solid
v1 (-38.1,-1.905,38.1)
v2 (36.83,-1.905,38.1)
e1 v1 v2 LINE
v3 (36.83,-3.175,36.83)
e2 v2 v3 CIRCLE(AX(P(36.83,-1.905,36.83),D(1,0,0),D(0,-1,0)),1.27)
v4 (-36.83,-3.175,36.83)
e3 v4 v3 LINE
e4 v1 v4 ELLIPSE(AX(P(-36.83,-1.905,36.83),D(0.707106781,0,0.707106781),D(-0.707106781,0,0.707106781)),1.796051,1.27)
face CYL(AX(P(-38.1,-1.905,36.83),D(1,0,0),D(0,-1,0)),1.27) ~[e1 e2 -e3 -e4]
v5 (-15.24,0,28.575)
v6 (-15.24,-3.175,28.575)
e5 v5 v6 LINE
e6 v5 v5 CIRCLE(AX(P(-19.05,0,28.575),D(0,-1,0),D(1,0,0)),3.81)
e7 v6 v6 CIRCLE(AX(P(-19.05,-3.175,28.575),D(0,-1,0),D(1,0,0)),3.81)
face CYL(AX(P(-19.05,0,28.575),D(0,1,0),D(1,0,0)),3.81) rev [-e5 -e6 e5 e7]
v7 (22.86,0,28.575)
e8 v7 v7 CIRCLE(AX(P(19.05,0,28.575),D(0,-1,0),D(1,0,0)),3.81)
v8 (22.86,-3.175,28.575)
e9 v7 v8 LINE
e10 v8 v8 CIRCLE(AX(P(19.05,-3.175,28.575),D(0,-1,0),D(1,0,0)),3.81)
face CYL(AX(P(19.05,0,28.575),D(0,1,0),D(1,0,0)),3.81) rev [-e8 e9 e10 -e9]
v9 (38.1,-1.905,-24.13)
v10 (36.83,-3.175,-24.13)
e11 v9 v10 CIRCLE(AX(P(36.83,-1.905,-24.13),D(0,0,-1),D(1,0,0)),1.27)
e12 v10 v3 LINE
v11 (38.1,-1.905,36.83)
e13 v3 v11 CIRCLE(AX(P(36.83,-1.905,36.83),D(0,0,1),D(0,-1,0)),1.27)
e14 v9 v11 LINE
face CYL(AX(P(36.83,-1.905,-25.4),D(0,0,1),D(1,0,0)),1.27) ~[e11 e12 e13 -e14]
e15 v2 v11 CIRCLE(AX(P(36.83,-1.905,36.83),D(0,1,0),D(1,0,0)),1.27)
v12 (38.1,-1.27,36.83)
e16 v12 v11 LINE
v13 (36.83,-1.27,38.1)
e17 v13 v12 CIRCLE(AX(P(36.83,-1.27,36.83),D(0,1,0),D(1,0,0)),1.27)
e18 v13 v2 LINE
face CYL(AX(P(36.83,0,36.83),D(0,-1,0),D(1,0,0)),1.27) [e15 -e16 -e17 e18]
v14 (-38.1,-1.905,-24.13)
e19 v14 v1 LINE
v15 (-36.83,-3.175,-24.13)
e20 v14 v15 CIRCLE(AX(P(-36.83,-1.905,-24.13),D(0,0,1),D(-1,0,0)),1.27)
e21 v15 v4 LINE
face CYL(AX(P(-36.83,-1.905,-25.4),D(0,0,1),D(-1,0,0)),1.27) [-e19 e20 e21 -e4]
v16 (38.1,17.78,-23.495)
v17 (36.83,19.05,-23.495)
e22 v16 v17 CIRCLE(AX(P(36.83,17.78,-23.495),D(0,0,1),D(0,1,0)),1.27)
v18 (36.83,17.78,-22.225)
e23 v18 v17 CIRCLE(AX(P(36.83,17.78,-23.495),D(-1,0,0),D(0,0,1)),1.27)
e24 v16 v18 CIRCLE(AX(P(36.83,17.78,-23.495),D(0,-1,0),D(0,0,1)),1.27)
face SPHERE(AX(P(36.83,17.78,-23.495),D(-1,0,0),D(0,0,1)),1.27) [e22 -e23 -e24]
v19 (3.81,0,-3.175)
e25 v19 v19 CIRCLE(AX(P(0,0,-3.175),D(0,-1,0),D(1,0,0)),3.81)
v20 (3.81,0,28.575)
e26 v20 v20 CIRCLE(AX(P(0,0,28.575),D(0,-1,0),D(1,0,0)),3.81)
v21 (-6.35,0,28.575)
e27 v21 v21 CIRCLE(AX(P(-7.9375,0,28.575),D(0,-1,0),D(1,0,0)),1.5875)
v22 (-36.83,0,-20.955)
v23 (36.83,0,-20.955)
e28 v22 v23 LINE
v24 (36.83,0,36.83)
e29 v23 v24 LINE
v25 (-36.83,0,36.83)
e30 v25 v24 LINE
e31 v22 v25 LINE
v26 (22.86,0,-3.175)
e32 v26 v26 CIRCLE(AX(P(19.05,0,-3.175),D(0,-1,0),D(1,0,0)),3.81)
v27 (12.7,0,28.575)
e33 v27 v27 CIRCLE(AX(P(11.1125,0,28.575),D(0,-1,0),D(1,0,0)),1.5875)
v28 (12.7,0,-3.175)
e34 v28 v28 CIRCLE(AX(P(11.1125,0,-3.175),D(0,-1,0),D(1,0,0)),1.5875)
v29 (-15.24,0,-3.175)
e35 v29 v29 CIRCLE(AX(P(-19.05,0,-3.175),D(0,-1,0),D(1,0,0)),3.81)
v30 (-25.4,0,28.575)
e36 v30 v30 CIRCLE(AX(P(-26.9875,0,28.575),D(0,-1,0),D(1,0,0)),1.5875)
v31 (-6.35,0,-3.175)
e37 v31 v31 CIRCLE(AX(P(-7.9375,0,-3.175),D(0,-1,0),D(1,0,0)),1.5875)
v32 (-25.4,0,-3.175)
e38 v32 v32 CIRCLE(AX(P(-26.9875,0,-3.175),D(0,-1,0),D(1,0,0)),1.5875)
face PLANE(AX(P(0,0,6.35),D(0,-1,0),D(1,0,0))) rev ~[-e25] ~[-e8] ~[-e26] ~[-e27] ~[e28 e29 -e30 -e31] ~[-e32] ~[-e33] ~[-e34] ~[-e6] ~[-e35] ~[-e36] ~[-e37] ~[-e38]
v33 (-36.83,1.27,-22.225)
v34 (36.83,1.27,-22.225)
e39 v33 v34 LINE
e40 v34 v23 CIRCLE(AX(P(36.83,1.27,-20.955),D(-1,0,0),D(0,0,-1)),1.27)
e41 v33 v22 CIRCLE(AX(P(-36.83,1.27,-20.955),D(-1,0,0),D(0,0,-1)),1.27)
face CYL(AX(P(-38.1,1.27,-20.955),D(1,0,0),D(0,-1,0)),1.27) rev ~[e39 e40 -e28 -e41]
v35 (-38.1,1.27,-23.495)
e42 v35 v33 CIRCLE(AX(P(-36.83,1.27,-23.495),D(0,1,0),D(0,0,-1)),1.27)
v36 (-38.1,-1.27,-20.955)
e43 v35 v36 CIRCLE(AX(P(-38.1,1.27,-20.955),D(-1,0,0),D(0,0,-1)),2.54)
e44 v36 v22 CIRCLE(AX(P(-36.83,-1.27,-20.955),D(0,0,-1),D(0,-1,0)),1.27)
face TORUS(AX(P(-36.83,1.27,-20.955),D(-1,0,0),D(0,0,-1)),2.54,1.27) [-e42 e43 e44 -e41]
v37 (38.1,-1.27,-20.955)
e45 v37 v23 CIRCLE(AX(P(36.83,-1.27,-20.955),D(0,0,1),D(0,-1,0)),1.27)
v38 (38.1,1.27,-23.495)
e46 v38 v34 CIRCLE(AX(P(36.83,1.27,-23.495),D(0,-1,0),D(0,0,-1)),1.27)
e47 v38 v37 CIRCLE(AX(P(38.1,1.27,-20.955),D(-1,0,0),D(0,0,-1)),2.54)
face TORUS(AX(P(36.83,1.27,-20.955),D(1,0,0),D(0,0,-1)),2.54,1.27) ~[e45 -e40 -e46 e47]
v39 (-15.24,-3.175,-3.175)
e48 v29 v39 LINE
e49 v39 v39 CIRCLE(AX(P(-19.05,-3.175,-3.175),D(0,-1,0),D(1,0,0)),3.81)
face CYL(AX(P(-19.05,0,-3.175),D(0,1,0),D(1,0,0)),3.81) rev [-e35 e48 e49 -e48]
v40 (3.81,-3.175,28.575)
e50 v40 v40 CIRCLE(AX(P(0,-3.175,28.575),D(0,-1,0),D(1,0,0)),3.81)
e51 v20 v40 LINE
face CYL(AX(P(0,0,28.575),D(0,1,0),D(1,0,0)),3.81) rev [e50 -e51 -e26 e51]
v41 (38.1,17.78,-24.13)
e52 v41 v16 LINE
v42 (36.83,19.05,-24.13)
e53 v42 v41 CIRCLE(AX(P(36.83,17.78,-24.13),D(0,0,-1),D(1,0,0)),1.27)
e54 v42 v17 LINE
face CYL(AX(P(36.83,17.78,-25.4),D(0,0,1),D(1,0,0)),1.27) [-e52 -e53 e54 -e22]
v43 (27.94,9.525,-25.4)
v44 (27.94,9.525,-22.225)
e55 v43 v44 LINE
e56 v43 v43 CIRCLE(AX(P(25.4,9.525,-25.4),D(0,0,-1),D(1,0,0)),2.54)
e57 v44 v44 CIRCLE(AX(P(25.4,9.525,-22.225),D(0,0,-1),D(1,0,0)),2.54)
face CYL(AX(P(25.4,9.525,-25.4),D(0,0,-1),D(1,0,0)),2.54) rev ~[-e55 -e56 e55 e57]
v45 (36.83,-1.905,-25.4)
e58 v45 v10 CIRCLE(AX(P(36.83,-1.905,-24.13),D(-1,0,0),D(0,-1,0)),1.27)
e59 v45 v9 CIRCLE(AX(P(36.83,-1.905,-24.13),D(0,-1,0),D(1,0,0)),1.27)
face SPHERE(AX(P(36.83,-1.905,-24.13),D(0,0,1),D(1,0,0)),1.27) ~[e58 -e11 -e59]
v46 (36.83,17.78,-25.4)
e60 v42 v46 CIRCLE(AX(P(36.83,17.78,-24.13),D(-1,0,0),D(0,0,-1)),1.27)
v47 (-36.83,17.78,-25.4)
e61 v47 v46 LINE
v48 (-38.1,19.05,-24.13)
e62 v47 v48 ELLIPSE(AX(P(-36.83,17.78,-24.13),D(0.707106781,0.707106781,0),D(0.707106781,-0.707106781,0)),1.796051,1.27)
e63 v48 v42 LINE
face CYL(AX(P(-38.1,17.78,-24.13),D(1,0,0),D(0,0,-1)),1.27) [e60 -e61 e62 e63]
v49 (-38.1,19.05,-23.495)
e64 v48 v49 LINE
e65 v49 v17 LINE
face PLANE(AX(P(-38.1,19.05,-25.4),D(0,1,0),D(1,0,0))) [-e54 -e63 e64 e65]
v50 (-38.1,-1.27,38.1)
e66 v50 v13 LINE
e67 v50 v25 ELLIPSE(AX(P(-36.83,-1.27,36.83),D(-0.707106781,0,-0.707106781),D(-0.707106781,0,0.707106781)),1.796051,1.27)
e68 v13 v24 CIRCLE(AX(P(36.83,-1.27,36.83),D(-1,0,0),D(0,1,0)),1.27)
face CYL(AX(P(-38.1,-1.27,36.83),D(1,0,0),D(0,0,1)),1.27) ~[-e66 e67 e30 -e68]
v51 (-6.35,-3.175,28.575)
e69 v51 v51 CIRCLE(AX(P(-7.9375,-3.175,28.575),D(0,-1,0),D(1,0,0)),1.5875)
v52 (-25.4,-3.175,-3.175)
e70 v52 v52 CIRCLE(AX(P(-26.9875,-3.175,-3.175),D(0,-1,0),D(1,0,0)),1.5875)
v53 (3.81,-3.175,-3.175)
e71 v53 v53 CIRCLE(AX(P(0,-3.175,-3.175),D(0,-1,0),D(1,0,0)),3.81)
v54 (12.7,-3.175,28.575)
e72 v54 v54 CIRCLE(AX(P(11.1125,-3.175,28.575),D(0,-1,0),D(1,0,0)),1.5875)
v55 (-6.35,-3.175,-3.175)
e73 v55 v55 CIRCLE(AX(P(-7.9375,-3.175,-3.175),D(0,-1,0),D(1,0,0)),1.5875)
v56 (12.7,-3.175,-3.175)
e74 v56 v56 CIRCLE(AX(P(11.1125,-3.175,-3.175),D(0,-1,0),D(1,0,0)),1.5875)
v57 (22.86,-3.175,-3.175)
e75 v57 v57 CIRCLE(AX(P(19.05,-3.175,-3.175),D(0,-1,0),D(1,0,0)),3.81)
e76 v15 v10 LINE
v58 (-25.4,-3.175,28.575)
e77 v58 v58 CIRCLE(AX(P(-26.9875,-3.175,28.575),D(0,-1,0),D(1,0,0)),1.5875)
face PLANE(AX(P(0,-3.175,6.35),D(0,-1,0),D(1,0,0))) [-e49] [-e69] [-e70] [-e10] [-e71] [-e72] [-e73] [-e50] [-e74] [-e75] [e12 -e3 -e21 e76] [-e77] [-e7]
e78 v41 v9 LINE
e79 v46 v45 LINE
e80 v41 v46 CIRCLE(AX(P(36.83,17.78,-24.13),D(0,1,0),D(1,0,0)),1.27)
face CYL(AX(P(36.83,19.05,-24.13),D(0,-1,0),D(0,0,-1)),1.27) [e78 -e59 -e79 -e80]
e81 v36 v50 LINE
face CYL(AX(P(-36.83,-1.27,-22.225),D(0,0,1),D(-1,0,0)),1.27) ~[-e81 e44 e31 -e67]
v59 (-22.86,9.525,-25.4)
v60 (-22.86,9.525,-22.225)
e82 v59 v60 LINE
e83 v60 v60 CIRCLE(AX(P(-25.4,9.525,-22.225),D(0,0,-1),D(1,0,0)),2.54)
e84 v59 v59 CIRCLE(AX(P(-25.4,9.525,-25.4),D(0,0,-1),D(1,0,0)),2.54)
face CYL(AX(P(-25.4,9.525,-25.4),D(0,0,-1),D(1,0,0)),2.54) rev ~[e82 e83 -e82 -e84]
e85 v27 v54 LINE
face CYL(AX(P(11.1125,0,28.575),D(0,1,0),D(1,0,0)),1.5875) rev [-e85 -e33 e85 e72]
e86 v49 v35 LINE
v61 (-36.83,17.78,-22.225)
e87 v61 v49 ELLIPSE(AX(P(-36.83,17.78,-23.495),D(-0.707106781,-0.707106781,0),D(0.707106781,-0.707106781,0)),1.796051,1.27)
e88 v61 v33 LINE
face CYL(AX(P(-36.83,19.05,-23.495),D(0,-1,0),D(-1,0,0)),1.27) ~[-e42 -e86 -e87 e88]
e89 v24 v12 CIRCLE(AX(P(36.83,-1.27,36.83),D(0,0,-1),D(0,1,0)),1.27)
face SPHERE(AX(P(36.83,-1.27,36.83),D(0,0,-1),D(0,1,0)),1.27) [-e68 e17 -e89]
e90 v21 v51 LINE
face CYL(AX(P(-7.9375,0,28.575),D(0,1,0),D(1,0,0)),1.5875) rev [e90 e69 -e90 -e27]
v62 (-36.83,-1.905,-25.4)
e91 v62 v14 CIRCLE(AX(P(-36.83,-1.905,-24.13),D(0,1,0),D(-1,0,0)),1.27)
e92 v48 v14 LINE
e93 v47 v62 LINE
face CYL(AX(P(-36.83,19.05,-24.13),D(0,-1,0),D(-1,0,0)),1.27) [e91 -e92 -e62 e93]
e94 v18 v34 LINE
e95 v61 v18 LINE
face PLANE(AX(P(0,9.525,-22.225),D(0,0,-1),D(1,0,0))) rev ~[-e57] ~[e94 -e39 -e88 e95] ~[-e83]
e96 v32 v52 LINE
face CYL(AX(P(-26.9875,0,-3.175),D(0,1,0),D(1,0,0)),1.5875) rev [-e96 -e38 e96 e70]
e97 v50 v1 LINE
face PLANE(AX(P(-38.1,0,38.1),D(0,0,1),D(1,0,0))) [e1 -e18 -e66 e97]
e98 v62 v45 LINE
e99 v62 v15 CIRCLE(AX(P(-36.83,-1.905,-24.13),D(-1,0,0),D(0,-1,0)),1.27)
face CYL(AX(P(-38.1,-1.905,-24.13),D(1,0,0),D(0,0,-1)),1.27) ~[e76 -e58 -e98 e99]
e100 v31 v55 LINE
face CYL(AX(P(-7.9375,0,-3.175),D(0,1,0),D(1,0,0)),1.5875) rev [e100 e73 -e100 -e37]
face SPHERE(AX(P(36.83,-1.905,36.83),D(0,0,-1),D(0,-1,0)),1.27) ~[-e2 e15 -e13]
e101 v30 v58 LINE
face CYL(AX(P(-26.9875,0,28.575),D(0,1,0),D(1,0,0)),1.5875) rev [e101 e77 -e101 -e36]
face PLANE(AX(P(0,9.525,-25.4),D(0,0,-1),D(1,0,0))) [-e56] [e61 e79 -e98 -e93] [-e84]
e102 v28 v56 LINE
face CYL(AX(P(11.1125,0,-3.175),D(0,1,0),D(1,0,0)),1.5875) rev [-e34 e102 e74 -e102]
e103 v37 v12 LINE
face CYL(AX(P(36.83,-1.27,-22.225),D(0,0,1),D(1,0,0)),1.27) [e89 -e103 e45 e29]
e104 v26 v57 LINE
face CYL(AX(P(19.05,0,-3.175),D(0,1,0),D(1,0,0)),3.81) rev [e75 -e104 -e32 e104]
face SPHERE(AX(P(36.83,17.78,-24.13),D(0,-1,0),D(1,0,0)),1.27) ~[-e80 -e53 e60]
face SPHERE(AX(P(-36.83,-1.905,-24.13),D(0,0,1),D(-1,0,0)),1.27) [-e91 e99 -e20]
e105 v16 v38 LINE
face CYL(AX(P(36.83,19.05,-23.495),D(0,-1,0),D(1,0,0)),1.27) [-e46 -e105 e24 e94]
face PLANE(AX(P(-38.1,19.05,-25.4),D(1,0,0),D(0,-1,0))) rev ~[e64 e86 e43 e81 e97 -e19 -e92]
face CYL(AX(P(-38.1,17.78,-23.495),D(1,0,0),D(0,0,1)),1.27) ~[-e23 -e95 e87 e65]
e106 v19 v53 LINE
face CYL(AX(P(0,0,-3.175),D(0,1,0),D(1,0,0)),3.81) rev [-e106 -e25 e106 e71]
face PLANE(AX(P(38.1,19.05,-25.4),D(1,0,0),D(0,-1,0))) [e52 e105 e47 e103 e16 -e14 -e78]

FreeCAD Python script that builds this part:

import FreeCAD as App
import Part
import Sketcher
Q = App.Units.Quantity


def edges_at(feature, points):
    """Names of the edges that pass closest to the given points."""
    edges = feature.Shape.Edges
    near = lambda p: min(range(len(edges)), key=lambda i: edges[i].distToShape(Part.Vertex(*p))[0])
    return sorted({f"Edge{near(p) + 1}" for p in points})


def add_polygon(sketch, points):
    """Adds a closed chain of lines whose ends are joined by coincident constraints."""
    first, n = sketch.GeometryCount, len(points)
    for a, b in zip(points, points[1:] + points[:1]):
        sketch.addGeometry(Part.LineSegment(App.Vector(*a, 0), App.Vector(*b, 0)), False)
    for i in range(n):
        sketch.addConstraint(Sketcher.Constraint("Coincident", first + i, 2, first + (i + 1) % n, 1))

doc = App.newDocument("Part")
body = doc.addObject("PartDesign::Body", "Body")

# Sketch on XZ plane
sketch1 = body.newObject("Sketcher::SketchObject", "Sketch")
sketch1.AttachmentSupport = (doc.getObject("XZ_Plane"), [""])
sketch1.MapMode = "FlatFace"
add_polygon(sketch1, [(-38.1, 38.1), (-38.1, -25.4), (38.1, -25.4), (38.1, 38.1)])  # lines 0-3
sketch1.addGeometry(Part.Circle(App.Vector(-26.9875, -3.175, 0), App.Vector(0, 0, 1), 1.5875), False)  # 4
sketch1.addGeometry(Part.Circle(App.Vector(-19.05, -3.175, 0), App.Vector(0, 0, 1), 3.81), False)  # 5
sketch1.addGeometry(Part.Circle(App.Vector(-7.9375, -3.175, 0), App.Vector(0, 0, 1), 1.5875), False)  # 6
sketch1.addGeometry(Part.Circle(App.Vector(0, -3.175, 0), App.Vector(0, 0, 1), 3.81), False)  # 7
sketch1.addGeometry(Part.Circle(App.Vector(11.1125, -3.175, 0), App.Vector(0, 0, 1), 1.5875), False)  # 8
sketch1.addGeometry(Part.Circle(App.Vector(19.05, -3.175, 0), App.Vector(0, 0, 1), 3.81), False)  # 9
sketch1.addGeometry(Part.Circle(App.Vector(-26.9875, 28.575, 0), App.Vector(0, 0, 1), 1.5875), False)  # 10
sketch1.addGeometry(Part.Circle(App.Vector(-19.05, 28.575, 0), App.Vector(0, 0, 1), 3.81), False)  # 11
sketch1.addGeometry(Part.Circle(App.Vector(-7.9375, 28.575, 0), App.Vector(0, 0, 1), 1.5875), False)  # 12
sketch1.addGeometry(Part.Circle(App.Vector(0, 28.575, 0), App.Vector(0, 0, 1), 3.81), False)  # 13
sketch1.addGeometry(Part.Circle(App.Vector(11.1125, 28.575, 0), App.Vector(0, 0, 1), 1.5875), False)  # 14
sketch1.addGeometry(Part.Circle(App.Vector(19.05, 28.575, 0), App.Vector(0, 0, 1), 3.81), False)  # 15
sketch1.addConstraint([
    Sketcher.Constraint("Vertical", 0),
    Sketcher.Constraint("Horizontal", 1),
    Sketcher.Constraint("Vertical", 2),
    Sketcher.Constraint("Horizontal", 3),
    Sketcher.Constraint("Equal", 4, 6),
    Sketcher.Constraint("Equal", 5, 7),
    Sketcher.Constraint("Equal", 6, 8),
    Sketcher.Constraint("Equal", 7, 9),
    Sketcher.Constraint("Equal", 8, 10),
    Sketcher.Constraint("Equal", 9, 11),
    Sketcher.Constraint("Equal", 10, 12),
    Sketcher.Constraint("Equal", 11, 13),
    Sketcher.Constraint("Equal", 12, 14),
    Sketcher.Constraint("Equal", 13, 15),
    Sketcher.Constraint("Symmetric", 5, 3, 9, 3, -2),
    Sketcher.Constraint("Symmetric", 11, 3, 15, 3, -2),
    Sketcher.Constraint("PointOnObject", 7, 3, -2),
    Sketcher.Constraint("PointOnObject", 13, 3, -2),
    Sketcher.Constraint("Horizontal", 4, 3, 5, 3),
    Sketcher.Constraint("Horizontal", 5, 3, 6, 3),
    Sketcher.Constraint("Horizontal", 6, 3, 7, 3),
    Sketcher.Constraint("Horizontal", 7, 3, 8, 3),
    Sketcher.Constraint("Horizontal", 10, 3, 11, 3),
    Sketcher.Constraint("Horizontal", 11, 3, 12, 3),
    Sketcher.Constraint("Horizontal", 12, 3, 13, 3),
    Sketcher.Constraint("Horizontal", 13, 3, 14, 3),
    Sketcher.Constraint("Vertical", 4, 3, 10, 3),
    Sketcher.Constraint("Vertical", 5, 3, 11, 3),
    Sketcher.Constraint("Vertical", 6, 3, 12, 3),
    Sketcher.Constraint("Vertical", 8, 3, 14, 3),
    Sketcher.Constraint("Diameter", 5, Q("0.3 in")),
    Sketcher.Constraint("DistanceX", 1, 1, 1, 2, Q("3 in")),
    Sketcher.Constraint("Diameter", 4, Q("0.125 in")),
    Sketcher.Constraint("DistanceY", 0, 2, 0, 1, Q("2.5 in")),
    Sketcher.Constraint("DistanceY", 0, 2, -1, 1, Q("1 in")),
    Sketcher.Constraint("DistanceX", 0, 2, -1, 1, Q("1.5 in")),
    Sketcher.Constraint("DistanceX", 4, 3, 8, 3, Q("1.5 in")),
    Sketcher.Constraint("DistanceX", 5, 3, 9, 3, Q("1.5 in")),
    Sketcher.Constraint("DistanceX", 4, 3, 6, 3, Q("0.75 in")),
    Sketcher.Constraint("DistanceY", 4, 3, 10, 3, Q("1.25 in")),
    Sketcher.Constraint("DistanceX", 4, 3, -1, 1, Q("1.0625 in")),
    Sketcher.Constraint("DistanceY", 4, 3, -1, 1, Q("0.125 in")),
])
pad1 = body.newObject("PartDesign::Pad", "Pad")
pad1.Profile = sketch1
pad1.Length = Q("0.125 in")

# Sketch on XY plane
sketch2 = body.newObject("Sketcher::SketchObject", "Sketch001")
sketch2.AttachmentSupport = (doc.getObject("XY_Plane"), [""])
sketch2.MapMode = "FlatFace"
sketch2.AttachmentOffset = App.Placement(App.Vector(0, 0, -1 * 25.4), App.Rotation())
add_polygon(sketch2, [(-38.1, 0), (-38.1, 19.05), (38.1, 19.05), (38.1, 0)])  # lines 0-3
sketch2.addGeometry(Part.Circle(App.Vector(-25.4, 9.525, 0), App.Vector(0, 0, 1), 2.54), False)  # 4
sketch2.addGeometry(Part.Circle(App.Vector(25.4, 9.525, 0), App.Vector(0, 0, 1), 2.54), False)  # 5
sketch2.addConstraint([
    Sketcher.Constraint("Vertical", 0),
    Sketcher.Constraint("Horizontal", 1),
    Sketcher.Constraint("Vertical", 2),
    Sketcher.Constraint("Horizontal", 3),
    Sketcher.Constraint("Equal", 4, 5),
    Sketcher.Constraint("Symmetric", 2, 2, 3, 2, -1, 1),
    Sketcher.Constraint("Symmetric", 4, 3, 5, 3, -2),
    Sketcher.Constraint("Diameter", 4, Q("0.2 in")),
    Sketcher.Constraint("DistanceX", 1, 1, 1, 2, Q("3 in")),
    Sketcher.Constraint("DistanceX", 4, 3, -1, 1, Q("1 in")),
    Sketcher.Constraint("DistanceY", 0, 1, 0, 2, Q("0.75 in")),
    Sketcher.Constraint("DistanceY", -1, 1, 4, 3, Q("0.375 in")),
])
pad2 = body.newObject("PartDesign::Pad", "Pad001")
pad2.Profile = sketch2
pad2.Length = Q("0.125 in")
doc.recompute()

fillet = body.newObject("PartDesign::Fillet", "Fillet")
fillet.Base = (pad2, edges_at(pad2, [
    (38.1, -3.175, 6.35),
    (38.1, 0, 7.938),
    (-38.1, -3.175, 6.35),
    (-38.1, 0, 7.938),
    (0, 0, 38.1),
    (0, -3.175, 38.1),
    (0, 0, -22.225),
    (0, 19.05, -22.225),
    (38.1, 7.938, -25.4),
    (38.1, -1.587, 38.1),
    (38.1, 9.525, -22.225),
    (38.1, 19.05, -23.812),
    (0, 19.05, -25.4),
    (-38.1, 7.938, -25.4),
    (0, -3.175, -25.4),
    (-38.1, 9.525, -22.225),
]))
fillet.Radius = Q("0.05 in")

doc.recompute()
